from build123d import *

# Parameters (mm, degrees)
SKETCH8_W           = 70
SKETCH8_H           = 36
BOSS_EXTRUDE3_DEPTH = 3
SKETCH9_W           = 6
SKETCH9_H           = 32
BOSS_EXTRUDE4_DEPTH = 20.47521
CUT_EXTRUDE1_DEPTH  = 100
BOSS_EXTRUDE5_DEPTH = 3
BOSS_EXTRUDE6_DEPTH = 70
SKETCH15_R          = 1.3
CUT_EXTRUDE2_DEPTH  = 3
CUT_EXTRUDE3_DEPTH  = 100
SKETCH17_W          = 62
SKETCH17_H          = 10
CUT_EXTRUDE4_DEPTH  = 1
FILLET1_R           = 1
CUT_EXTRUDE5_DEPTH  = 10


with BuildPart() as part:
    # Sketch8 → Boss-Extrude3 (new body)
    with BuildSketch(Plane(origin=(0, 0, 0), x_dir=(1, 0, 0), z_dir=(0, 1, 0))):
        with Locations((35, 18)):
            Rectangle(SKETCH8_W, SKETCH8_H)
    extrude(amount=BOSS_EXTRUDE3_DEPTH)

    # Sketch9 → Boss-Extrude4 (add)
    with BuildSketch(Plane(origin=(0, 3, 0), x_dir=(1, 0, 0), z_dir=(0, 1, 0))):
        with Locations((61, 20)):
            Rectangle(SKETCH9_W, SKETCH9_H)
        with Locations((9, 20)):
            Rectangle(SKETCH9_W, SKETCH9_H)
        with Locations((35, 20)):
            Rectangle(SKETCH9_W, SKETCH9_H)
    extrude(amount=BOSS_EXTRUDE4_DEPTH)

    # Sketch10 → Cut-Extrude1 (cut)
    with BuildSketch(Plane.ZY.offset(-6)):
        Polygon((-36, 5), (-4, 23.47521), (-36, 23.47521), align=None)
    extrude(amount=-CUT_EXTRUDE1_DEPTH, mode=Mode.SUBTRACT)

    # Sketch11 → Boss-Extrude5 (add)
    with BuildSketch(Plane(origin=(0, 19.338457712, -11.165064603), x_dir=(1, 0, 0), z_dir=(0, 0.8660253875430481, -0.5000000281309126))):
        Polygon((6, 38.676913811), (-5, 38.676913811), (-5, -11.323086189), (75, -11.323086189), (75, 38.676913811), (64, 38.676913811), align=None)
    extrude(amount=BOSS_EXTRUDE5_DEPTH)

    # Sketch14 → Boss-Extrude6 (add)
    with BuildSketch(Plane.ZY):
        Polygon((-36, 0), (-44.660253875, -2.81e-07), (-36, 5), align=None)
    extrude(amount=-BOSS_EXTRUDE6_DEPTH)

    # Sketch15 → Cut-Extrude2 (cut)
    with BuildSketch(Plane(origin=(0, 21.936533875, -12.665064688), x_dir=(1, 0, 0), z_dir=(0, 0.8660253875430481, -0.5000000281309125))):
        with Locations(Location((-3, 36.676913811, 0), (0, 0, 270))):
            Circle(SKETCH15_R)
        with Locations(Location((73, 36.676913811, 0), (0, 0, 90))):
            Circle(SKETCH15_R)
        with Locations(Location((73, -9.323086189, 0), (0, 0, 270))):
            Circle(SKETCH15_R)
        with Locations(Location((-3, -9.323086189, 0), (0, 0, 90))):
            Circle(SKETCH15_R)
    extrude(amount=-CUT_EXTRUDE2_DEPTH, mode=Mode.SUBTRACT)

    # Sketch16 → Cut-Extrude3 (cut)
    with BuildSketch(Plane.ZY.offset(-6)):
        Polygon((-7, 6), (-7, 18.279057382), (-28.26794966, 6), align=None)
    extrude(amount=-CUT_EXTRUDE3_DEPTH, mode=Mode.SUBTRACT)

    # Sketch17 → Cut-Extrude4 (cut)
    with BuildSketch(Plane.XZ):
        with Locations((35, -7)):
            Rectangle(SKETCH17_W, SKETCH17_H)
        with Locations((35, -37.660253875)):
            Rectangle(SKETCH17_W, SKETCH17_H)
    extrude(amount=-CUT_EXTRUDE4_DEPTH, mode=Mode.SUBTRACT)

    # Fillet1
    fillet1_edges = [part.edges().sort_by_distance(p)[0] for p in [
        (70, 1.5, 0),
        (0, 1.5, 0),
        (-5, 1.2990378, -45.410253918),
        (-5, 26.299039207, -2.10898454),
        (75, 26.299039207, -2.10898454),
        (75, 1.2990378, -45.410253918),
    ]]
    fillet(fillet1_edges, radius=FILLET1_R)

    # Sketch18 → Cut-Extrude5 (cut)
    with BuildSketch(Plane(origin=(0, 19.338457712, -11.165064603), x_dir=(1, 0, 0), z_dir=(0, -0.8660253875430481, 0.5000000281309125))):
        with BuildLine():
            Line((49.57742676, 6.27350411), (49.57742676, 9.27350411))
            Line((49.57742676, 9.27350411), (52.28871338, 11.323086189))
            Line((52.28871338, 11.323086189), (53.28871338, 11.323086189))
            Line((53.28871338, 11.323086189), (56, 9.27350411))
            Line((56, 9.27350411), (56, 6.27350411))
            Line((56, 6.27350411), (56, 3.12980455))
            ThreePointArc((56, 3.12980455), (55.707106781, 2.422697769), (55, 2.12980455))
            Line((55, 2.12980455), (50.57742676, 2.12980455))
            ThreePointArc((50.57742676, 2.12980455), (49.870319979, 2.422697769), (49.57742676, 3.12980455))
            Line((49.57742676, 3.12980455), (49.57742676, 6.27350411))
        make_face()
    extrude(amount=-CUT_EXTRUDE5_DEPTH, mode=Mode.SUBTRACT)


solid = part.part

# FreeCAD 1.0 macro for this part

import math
import FreeCAD as App
import Part
import Sketcher

V = App.Vector
Q = App.Units.Quantity


def edges_at(feature, points):
    """Names of the edges that pass closest to the given points."""
    edges = feature.Shape.Edges
    near = lambda p: min(range(len(edges)), key=lambda i: edges[i].distToShape(Part.Vertex(*p))[0])
    return sorted({f"Edge{near(p) + 1}" for p in points})


def add_polygon(sketch, points):
    """Adds a closed chain of lines whose ends are joined by coincident constraints."""
    first, n = sketch.GeometryCount, len(points)
    for a, b in zip(points, points[1:] + points[:1]):
        sketch.addGeometry(Part.LineSegment(App.Vector(*a, 0), App.Vector(*b, 0)), False)
    for i in range(n):
        sketch.addConstraint(Sketcher.Constraint("Coincident", first + i, 2, first + (i + 1) % n, 1))

doc = App.newDocument("Part")
body = doc.addObject("PartDesign::Body", "Body")

# Sketch on XZ plane
sketch1 = body.newObject("Sketcher::SketchObject", "Sketch")
sketch1.AttachmentSupport = (doc.getObject("XZ_Plane"), [""])
sketch1.MapMode = "FlatFace"
add_polygon(sketch1, [(0, -36), (0, 0), (70, 0), (70, -36)])  # lines 0-3
sketch1.addConstraint([
    Sketcher.Constraint("Vertical", 0),
    Sketcher.Constraint("Horizontal", 1),
    Sketcher.Constraint("Vertical", 2),
    Sketcher.Constraint("Horizontal", 3),
    Sketcher.Constraint("Coincident", 0, 2, -1, 1),
    Sketcher.Constraint("DistanceX", 1, 1, 1, 2, Q("70 mm")),
    Sketcher.Constraint("DistanceY", 0, 1, 0, 2, Q("36 mm")),
])
pad1 = body.newObject("PartDesign::Pad", "Pad")
pad1.Profile = sketch1
pad1.Length = 3
pad1.Reversed = True

# Sketch on XZ plane
sketch2 = body.newObject("Sketcher::SketchObject", "Sketch001")
sketch2.AttachmentSupport = (doc.getObject("XZ_Plane"), [""])
sketch2.MapMode = "FlatFace"
sketch2.AttachmentOffset = App.Placement(V(0, 0, -3), App.Rotation())
add_polygon(sketch2, [(58, -36), (58, -4), (64, -4), (64, -36)])  # lines 0-3
add_polygon(sketch2, [(6, -36), (6, -4), (12, -4), (12, -36)])  # lines 4-7
add_polygon(sketch2, [(32, -36), (32, -4), (38, -4), (38, -36)])  # lines 8-11
sketch2.addConstraint([
    Sketcher.Constraint("Vertical", 0),
    Sketcher.Constraint("Horizontal", 1),
    Sketcher.Constraint("Vertical", 2),
    Sketcher.Constraint("Horizontal", 3),
    Sketcher.Constraint("Vertical", 4),
    Sketcher.Constraint("Horizontal", 5),
    Sketcher.Constraint("Vertical", 6),
    Sketcher.Constraint("Horizontal", 7),
    Sketcher.Constraint("Vertical", 8),
    Sketcher.Constraint("Horizontal", 9),
    Sketcher.Constraint("Vertical", 10),
    Sketcher.Constraint("Horizontal", 11),
    Sketcher.Constraint("Horizontal", 1, 2, 4, 2),
    Sketcher.Constraint("Horizontal", 3, 2, 6, 2),
    Sketcher.Constraint("Horizontal", 5, 2, 8, 2),
    Sketcher.Constraint("Horizontal", 7, 2, 10, 2),
    Sketcher.Constraint("Equal", 3, 5),
    Sketcher.Constraint("Equal", 7, 9),
    Sketcher.Constraint("DistanceX", 1, 1, 1, 2, Q("6 mm")),
    Sketcher.Constraint("DistanceY", 0, 1, 0, 2, Q("32 mm")),
    Sketcher.Constraint("DistanceX", -1, 1, 0, 2, Q("58 mm")),
    Sketcher.Constraint("DistanceY", 0, 2, -1, 1, Q("4 mm")),
    Sketcher.Constraint("DistanceX", -1, 1, 4, 2, Q("6 mm")),
    Sketcher.Constraint("DistanceX", -1, 1, 8, 2, Q("32 mm")),
])
pad2 = body.newObject("PartDesign::Pad", "Pad001")
pad2.Profile = sketch2
pad2.Length = 20.47521
pad2.Reversed = True

# Sketch on YZ plane
sketch3 = body.newObject("Sketcher::SketchObject", "Sketch002")
sketch3.AttachmentSupport = (doc.getObject("YZ_Plane"), [""])
sketch3.MapMode = "FlatFace"
sketch3.AttachmentOffset = App.Placement(V(0, 0, 6), App.Rotation())
add_polygon(sketch3, [(5, -36), (23, -4), (23, -36)])  # lines 0-2
sketch3.addConstraint([
    Sketcher.Constraint("Vertical", 1),
    Sketcher.Constraint("Horizontal", 2),
    Sketcher.Constraint("DistanceY", 1, 2, 1, 1, Q("32 mm")),
    Sketcher.Constraint("Angle", 0, Q("59.999998 deg")),
    Sketcher.Constraint("DistanceY", 0, 2, -1, 1, Q("4 mm")),
    Sketcher.Constraint("DistanceX", -1, 1, 2, 2, Q("5 mm")),
])
pocket1 = body.newObject("PartDesign::Pocket", "Pocket")
pocket1.Profile = sketch3
pocket1.Length = 100
pocket1.Reversed = True

# Sketch on an angled plane
sketch4 = body.newObject("Sketcher::SketchObject", "Sketch003")
sketch4.Placement = App.Placement(V(0, 19.338458, -11.165065), App.Rotation(V(1, 0, 0), V(0, -0.500000028, -0.866025388), V(0, 0.866025388, -0.500000028), "ZXY"))
add_polygon(sketch4, [(-5, 39), (-5, -11), (75, -11), (75, 39)])  # lines 0-3
sketch4.addConstraint([
    Sketcher.Constraint("Vertical", 0),
    Sketcher.Constraint("Horizontal", 1),
    Sketcher.Constraint("Vertical", 2),
    Sketcher.Constraint("Horizontal", 3),
    Sketcher.Constraint("DistanceX", 1, 1, 1, 2, Q("80 mm")),
    Sketcher.Constraint("DistanceY", 0, 2, 0, 1, Q("50 mm")),
    Sketcher.Constraint("DistanceX", 0, 2, -1, 1, Q("5 mm")),
    Sketcher.Constraint("DistanceY", 0, 2, -1, 1, Q("11.323086 mm")),
])
pad3 = body.newObject("PartDesign::Pad", "Pad002")
pad3.Profile = sketch4
pad3.Length = 3

# Sketch on YZ plane
sketch5 = body.newObject("Sketcher::SketchObject", "Sketch004")
sketch5.AttachmentSupport = (doc.getObject("YZ_Plane"), [""])
sketch5.MapMode = "FlatFace"
add_polygon(sketch5, [(0, -45), (0, -36), (5, -36)])  # lines 0-2
sketch5.addConstraint([
    Sketcher.Constraint("Vertical", 0),
    Sketcher.Constraint("Horizontal", 1),
    Sketcher.Constraint("PointOnObject", 0, 2, -2),
    Sketcher.Constraint("DistanceX", 1, 1, 1, 2, Q("5 mm")),
    Sketcher.Constraint("Angle", 2, Q("-120.000002 deg")),
    Sketcher.Constraint("DistanceY", 0, 2, -1, 1, Q("36 mm")),
])
pad4 = body.newObject("PartDesign::Pad", "Pad003")
pad4.Profile = sketch5
pad4.Length = 70

# Sketch on an angled plane
sketch6 = body.newObject("Sketcher::SketchObject", "Sketch005")
sketch6.Placement = App.Placement(V(0, 21.936534, -12.665065), App.Rotation(V(1, 0, 0), V(0, -0.500000028, -0.866025388), V(0, 0.866025388, -0.500000028), "ZXY"))
sketch6.addGeometry([
    Part.Circle(V(-3, 36.7, 0), V(0, 0, 1), 1.3),
    Part.Circle(V(73, 36.7, 0), V(0, 0, 1), 1.3),
    Part.Circle(V(73, -9.3, 0), V(0, 0, 1), 1.3),
    Part.Circle(V(-3, -9.3, 0), V(0, 0, 1), 1.3),
], False)
sketch6.addConstraint([
    Sketcher.Constraint("Equal", 0, 1),
    Sketcher.Constraint("Equal", 1, 2),
    Sketcher.Constraint("Equal", 2, 3),
    Sketcher.Constraint("Horizontal", 0, 3, 1, 3),
    Sketcher.Constraint("Horizontal", 2, 3, 3, 3),
    Sketcher.Constraint("Vertical", 1, 3, 2, 3),
    Sketcher.Constraint("Vertical", 0, 3, 3, 3),
    Sketcher.Constraint("Diameter", 0, Q("2.6 mm")),
    Sketcher.Constraint("DistanceX", 0, 3, -1, 1, Q("3 mm")),
    Sketcher.Constraint("DistanceX", -1, 1, 1, 3, Q("73 mm")),
    Sketcher.Constraint("DistanceY", 2, 3, 1, 3, Q("46 mm")),
    Sketcher.Constraint("DistanceY", -1, 1, 0, 3, Q("36.676914 mm")),
])
pocket2 = body.newObject("PartDesign::Pocket", "Pocket001")
pocket2.Profile = sketch6
pocket2.Length = 3

# Sketch on YZ plane
sketch7 = body.newObject("Sketcher::SketchObject", "Sketch006")
sketch7.AttachmentSupport = (doc.getObject("YZ_Plane"), [""])
sketch7.MapMode = "FlatFace"
sketch7.AttachmentOffset = App.Placement(V(0, 0, 6), App.Rotation())
add_polygon(sketch7, [(6, -7), (18, -7), (6, -28)])  # lines 0-2
sketch7.addConstraint([
    Sketcher.Constraint("Horizontal", 0),
    Sketcher.Constraint("Vertical", 2),
    Sketcher.Constraint("Angle", 1, Q("-120.000002 deg")),
    Sketcher.Constraint("DistanceY", 0, 2, -1, 1, Q("7 mm")),
    Sketcher.Constraint("DistanceX", -1, 1, 1, 2, Q("6 mm")),
    Sketcher.Constraint("DistanceY", 2, 1, 2, 2, Q("21.26795 mm")),
])
pocket3 = body.newObject("PartDesign::Pocket", "Pocket002")
pocket3.Profile = sketch7
pocket3.Length = 100
pocket3.Reversed = True

# Sketch on XZ plane
sketch8 = body.newObject("Sketcher::SketchObject", "Sketch007")
sketch8.AttachmentSupport = (doc.getObject("XZ_Plane"), [""])
sketch8.MapMode = "FlatFace"
add_polygon(sketch8, [(4, -2), (4, -12), (66, -12), (66, -2)])  # lines 0-3
add_polygon(sketch8, [(4, -33), (4, -43), (66, -43), (66, -33)])  # lines 4-7
sketch8.addConstraint([
    Sketcher.Constraint("Vertical", 0),
    Sketcher.Constraint("Horizontal", 1),
    Sketcher.Constraint("Vertical", 2),
    Sketcher.Constraint("Horizontal", 3),
    Sketcher.Constraint("Vertical", 4),
    Sketcher.Constraint("Horizontal", 5),
    Sketcher.Constraint("Vertical", 6),
    Sketcher.Constraint("Horizontal", 7),
    Sketcher.Constraint("Vertical", 3, 2, 4, 2),
    Sketcher.Constraint("Vertical", 2, 2, 5, 2),
    Sketcher.Constraint("Equal", 2, 4),
    Sketcher.Constraint("DistanceX", 1, 1, 1, 2, Q("62 mm")),
    Sketcher.Constraint("DistanceY", 0, 2, 0, 1, Q("10 mm")),
    Sketcher.Constraint("DistanceX", -1, 1, 0, 2, Q("4 mm")),
    Sketcher.Constraint("DistanceY", 0, 2, -1, 1, Q("12 mm")),
    Sketcher.Constraint("DistanceY", 4, 2, -1, 1, Q("42.660254 mm")),
])
pocket4 = body.newObject("PartDesign::Pocket", "Pocket003")
pocket4.Profile = sketch8
pocket4.Length = 1
doc.recompute()

fillet = body.newObject("PartDesign::Fillet", "Fillet")
fillet.Base = (pocket4, edges_at(pocket4, [
    (70, 1.5, 0),
    (0, 1.5, 0),
    (-5, 1.299, -45.41),
    (-5, 26.299, -2.109),
    (75, 26.299, -2.109),
    (75, 1.299, -45.41),
]))
fillet.Radius = 1

# Sketch on an angled plane
sketch9 = body.newObject("Sketcher::SketchObject", "Sketch008")
sketch9.Placement = App.Placement(V(0, 19.338458, -11.165065), App.Rotation(V(1, 0, 0), V(0, 0.500000028, 0.866025388), V(0, -0.866025388, 0.500000028), "ZXY"))
sketch9.addGeometry([
    Part.LineSegment(V(52.3, 11.3, 0), V(49.6, 9.3, 0)),  # 0
    Part.LineSegment(V(49.6, 9.3, 0), V(49.6, 3.1, 0)),  # 1
    Part.ArcOfCircle(Part.Circle(V(50.6, 3.1, 0), V(0, 0, 1), 1), math.radians(-180), math.radians(-90)),  # 2
    Part.LineSegment(V(50.6, 2.1, 0), V(55, 2.1, 0)),  # 3
    Part.ArcOfCircle(Part.Circle(V(55, 3.1, 0), V(0, 0, 1), 1), math.radians(-90), math.radians(0)),  # 4
    Part.LineSegment(V(56, 3.1, 0), V(56, 9.3, 0)),  # 5
    Part.LineSegment(V(56, 9.3, 0), V(53.3, 11.3, 0)),  # 6
    Part.LineSegment(V(53.3, 11.3, 0), V(52.3, 11.3, 0)),  # 7
], False)
sketch9.addConstraint([
    Sketcher.Constraint("Coincident", 0, 2, 1, 1),
    Sketcher.Constraint("Tangent", 1, 2, 2, 1),
    Sketcher.Constraint("Tangent", 2, 2, 3, 1),
    Sketcher.Constraint("Tangent", 3, 2, 4, 1),
    Sketcher.Constraint("Tangent", 4, 2, 5, 1),
    Sketcher.Constraint("Coincident", 5, 2, 6, 1),
    Sketcher.Constraint("Coincident", 6, 2, 7, 1),
    Sketcher.Constraint("Coincident", 7, 2, 0, 1),
    Sketcher.Constraint("Vertical", 1),
    Sketcher.Constraint("Horizontal", 3),
    Sketcher.Constraint("Vertical", 5),
    Sketcher.Constraint("Horizontal", 7),
    Sketcher.Constraint("Equal", 2, 4),
    Sketcher.Constraint("Horizontal", 0, 2, 5, 2),
    Sketcher.Constraint("Equal", 0, 6),
    Sketcher.Constraint("Radius", 2, Q("1 mm")),
    Sketcher.Constraint("DistanceX", 7, 2, 7, 1, Q("1 mm")),
    Sketcher.Constraint("DistanceX", -1, 1, 4, 3, Q("55 mm")),
    Sketcher.Constraint("DistanceY", 1, 2, 1, 1, Q("6.1437 mm")),
    Sketcher.Constraint("DistanceX", 3, 1, 3, 2, Q("4.422573 mm")),
    Sketcher.Constraint("DistanceY", 4, 3, 6, 2, Q("8.193282 mm")),
    Sketcher.Constraint("DistanceY", -1, 1, 2, 3, Q("3.129805 mm")),
])
pocket5 = body.newObject("PartDesign::Pocket", "Pocket004")
pocket5.Profile = sketch9
pocket5.Length = 10

doc.recompute()
